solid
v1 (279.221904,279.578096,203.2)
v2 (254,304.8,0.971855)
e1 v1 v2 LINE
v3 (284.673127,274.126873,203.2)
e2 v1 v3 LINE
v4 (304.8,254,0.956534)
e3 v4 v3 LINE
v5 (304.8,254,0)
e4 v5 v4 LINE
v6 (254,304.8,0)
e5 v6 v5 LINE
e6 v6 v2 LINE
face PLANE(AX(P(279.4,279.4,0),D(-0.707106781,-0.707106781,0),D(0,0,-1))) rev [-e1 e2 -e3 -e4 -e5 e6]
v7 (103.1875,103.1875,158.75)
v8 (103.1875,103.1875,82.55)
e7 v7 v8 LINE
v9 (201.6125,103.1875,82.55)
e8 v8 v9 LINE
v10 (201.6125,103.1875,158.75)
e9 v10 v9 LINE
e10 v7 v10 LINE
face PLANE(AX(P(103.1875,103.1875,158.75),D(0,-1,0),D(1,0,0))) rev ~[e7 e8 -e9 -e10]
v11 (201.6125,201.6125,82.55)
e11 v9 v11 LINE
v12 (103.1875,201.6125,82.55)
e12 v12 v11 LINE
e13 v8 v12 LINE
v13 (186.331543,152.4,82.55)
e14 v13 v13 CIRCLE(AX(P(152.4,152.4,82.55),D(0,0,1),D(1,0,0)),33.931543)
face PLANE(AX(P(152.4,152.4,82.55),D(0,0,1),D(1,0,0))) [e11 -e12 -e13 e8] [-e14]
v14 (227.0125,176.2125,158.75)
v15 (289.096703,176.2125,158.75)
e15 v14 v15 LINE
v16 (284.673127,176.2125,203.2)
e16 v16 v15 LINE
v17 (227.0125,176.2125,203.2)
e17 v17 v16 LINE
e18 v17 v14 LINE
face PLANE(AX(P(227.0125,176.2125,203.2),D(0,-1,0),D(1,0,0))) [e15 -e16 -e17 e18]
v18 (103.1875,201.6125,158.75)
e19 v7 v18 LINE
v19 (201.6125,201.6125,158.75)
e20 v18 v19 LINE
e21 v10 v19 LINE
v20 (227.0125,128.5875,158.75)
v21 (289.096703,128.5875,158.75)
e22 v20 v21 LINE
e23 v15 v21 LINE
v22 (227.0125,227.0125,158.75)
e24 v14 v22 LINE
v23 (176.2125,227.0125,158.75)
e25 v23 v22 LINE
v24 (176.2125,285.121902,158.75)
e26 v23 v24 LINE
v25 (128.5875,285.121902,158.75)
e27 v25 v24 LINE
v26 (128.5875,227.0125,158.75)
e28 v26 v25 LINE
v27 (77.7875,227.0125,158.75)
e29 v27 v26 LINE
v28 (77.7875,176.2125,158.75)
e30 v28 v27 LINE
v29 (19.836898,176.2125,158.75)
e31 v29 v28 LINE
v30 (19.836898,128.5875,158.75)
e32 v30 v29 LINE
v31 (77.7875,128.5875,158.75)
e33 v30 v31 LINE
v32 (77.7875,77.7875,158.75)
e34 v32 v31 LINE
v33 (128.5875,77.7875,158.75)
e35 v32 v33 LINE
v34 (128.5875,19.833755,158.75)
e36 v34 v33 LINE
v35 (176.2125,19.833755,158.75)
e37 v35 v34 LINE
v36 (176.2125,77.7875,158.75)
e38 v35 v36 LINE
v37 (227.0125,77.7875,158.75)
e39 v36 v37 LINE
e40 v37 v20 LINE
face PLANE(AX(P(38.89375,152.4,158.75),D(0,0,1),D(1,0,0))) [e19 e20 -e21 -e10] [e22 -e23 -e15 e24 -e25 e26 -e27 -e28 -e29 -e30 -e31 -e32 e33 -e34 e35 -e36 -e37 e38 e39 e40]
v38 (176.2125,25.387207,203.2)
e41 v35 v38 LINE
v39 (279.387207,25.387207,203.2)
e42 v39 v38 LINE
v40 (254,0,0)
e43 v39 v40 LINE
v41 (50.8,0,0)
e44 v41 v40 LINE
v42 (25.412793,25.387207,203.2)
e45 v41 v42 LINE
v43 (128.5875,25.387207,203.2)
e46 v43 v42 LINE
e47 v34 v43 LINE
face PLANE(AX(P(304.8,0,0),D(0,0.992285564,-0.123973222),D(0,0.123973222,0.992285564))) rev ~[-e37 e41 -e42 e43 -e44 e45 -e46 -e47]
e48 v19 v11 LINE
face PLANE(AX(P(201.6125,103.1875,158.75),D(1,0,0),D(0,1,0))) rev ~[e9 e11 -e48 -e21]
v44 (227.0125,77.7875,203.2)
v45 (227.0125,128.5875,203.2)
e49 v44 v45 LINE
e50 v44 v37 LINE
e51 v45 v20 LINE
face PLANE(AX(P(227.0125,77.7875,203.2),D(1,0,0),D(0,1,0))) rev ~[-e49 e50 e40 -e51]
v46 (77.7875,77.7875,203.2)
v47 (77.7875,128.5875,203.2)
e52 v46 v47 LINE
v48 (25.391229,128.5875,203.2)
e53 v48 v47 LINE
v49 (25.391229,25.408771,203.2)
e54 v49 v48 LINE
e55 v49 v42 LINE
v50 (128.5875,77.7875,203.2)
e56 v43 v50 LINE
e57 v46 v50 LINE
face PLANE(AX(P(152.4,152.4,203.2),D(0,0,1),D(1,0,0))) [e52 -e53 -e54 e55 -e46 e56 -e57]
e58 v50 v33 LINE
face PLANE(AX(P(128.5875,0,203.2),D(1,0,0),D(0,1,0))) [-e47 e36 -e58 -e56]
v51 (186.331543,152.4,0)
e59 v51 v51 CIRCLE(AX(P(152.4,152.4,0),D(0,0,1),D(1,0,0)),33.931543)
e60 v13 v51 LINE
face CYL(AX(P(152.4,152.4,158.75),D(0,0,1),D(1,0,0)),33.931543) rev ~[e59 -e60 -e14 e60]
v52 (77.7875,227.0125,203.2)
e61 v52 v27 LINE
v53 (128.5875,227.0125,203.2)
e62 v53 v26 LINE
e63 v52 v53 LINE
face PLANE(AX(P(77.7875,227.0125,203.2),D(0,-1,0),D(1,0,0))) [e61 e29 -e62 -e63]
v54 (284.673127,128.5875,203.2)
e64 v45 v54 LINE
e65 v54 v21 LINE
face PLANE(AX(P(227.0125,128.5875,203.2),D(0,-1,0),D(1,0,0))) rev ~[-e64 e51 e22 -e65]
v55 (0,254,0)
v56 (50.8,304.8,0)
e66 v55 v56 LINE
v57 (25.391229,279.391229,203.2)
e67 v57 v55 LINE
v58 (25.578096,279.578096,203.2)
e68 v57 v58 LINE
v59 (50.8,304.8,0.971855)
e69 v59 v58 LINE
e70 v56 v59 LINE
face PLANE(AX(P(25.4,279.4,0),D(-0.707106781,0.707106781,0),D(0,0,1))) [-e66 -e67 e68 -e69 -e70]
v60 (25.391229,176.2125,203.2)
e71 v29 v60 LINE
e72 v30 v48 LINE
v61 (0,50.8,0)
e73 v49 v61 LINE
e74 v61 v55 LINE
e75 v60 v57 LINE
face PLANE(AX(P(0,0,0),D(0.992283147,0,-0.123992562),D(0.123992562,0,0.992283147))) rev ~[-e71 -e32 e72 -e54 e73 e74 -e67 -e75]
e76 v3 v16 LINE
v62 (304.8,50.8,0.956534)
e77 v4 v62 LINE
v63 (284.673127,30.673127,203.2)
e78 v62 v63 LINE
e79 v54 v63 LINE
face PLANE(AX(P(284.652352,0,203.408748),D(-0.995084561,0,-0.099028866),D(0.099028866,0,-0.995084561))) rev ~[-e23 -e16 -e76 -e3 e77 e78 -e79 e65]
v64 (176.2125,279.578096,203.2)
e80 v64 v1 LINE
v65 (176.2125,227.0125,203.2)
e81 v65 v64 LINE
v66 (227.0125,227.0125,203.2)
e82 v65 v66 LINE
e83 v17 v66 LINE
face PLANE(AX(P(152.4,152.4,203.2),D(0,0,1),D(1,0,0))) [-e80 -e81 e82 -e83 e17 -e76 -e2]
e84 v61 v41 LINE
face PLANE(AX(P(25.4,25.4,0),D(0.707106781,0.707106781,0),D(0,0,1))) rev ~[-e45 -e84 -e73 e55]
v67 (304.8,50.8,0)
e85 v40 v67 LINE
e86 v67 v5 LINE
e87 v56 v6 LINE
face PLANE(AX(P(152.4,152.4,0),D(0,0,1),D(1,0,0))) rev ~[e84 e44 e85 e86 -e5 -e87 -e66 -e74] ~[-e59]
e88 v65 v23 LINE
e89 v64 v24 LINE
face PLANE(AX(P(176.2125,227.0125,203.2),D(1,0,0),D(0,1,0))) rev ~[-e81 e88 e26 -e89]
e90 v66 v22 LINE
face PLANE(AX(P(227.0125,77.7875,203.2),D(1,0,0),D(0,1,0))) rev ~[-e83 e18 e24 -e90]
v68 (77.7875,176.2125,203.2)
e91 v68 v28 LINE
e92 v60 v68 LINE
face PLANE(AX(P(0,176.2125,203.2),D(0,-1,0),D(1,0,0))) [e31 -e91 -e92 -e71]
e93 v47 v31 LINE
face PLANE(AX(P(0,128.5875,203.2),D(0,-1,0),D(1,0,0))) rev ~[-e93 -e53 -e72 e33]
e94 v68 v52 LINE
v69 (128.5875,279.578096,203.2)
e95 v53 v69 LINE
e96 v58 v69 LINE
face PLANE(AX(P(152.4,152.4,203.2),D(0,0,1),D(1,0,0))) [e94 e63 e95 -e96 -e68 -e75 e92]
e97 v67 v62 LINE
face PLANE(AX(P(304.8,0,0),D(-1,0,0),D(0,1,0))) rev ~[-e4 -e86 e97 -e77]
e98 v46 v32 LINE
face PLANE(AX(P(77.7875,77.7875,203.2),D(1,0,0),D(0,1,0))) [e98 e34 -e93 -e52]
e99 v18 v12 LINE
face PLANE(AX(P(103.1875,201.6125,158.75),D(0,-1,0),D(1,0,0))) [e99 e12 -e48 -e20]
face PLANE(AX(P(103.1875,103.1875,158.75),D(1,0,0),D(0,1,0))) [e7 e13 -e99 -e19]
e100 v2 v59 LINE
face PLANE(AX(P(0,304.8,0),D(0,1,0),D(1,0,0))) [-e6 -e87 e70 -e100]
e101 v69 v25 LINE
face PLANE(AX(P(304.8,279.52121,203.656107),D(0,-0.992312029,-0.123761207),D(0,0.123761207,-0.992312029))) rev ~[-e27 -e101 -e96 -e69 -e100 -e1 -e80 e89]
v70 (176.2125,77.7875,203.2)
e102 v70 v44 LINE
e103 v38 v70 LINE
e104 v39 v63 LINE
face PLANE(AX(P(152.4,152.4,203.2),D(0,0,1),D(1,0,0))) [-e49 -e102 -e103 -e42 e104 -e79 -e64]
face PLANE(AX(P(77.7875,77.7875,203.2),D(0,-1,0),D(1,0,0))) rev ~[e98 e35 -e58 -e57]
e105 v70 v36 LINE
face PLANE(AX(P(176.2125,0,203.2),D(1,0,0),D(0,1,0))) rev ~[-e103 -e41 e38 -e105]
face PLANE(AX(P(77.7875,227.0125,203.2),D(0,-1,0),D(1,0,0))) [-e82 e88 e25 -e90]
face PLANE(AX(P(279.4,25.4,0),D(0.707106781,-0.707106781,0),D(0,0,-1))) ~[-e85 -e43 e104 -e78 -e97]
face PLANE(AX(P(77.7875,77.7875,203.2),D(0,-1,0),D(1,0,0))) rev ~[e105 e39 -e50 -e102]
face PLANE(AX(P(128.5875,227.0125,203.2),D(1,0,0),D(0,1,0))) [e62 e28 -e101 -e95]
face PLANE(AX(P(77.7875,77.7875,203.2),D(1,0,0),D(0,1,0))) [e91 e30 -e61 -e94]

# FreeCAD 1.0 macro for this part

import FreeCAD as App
import Part
import Sketcher
Q = App.Units.Quantity


def edges_at(feature, points):
    """Names of the edges that pass closest to the given points."""
    edges = feature.Shape.Edges
    near = lambda p: min(range(len(edges)), key=lambda i: edges[i].distToShape(Part.Vertex(*p))[0])
    return sorted({f"Edge{near(p) + 1}" for p in points})


def add_polygon(sketch, points):
    """Adds a closed chain of lines whose ends are joined by coincident constraints."""
    first, n = sketch.GeometryCount, len(points)
    for a, b in zip(points, points[1:] + points[:1]):
        sketch.addGeometry(Part.LineSegment(App.Vector(*a, 0), App.Vector(*b, 0)), False)
    for i in range(n):
        sketch.addConstraint(Sketcher.Constraint("Coincident", first + i, 2, first + (i + 1) % n, 1))

doc = App.newDocument("Part")
body = doc.addObject("PartDesign::Body", "Body")

sketch1 = body.newObject("Sketcher::SketchObject", "Sketch")
sketch1.AttachmentSupport = (doc.getObject("XY_Plane"), [""])
sketch1.MapMode = "FlatFace"
add_polygon(sketch1, [(0, 305), (0, 0), (305, 0), (305, 305)])
sketch1.addConstraint([
    Sketcher.Constraint("Vertical", 0),
    Sketcher.Constraint("Horizontal", 1),
    Sketcher.Constraint("Vertical", 2),
    Sketcher.Constraint("Horizontal", 3),
    Sketcher.Constraint("Coincident", 0, 2, -1, 1),
    Sketcher.Constraint("Equal", 3, 0),
    Sketcher.Constraint("DistanceX", 1, 1, 1, 2, Q("12 in")),
])
pad1 = body.newObject("PartDesign::Pad", "Pad")
pad1.Profile = sketch1
pad1.Length = Q("8 in")

sketch2 = body.newObject("Sketcher::SketchObject", "Sketch001")
sketch2.AttachmentSupport = (doc.getObject("XY_Plane"), [""])
sketch2.MapMode = "FlatFace"
sketch2.AttachmentOffset = App.Placement(App.Vector(0, 0, 8 * 25.4), App.Rotation())
add_polygon(sketch2, [(78, 227), (78, 78), (227, 78), (227, 227)])
sketch2.addConstraint([
    Sketcher.Constraint("Vertical", 0),
    Sketcher.Constraint("Horizontal", 1),
    Sketcher.Constraint("Vertical", 2),
    Sketcher.Constraint("Horizontal", 3),
    Sketcher.Constraint("Equal", 3, 0),
    Sketcher.Constraint("DistanceX", 1, 1, 1, 2, Q("5.875 in")),
    Sketcher.Constraint("DistanceX", -1, 1, 0, 2, Q("3.0625 in")),
    Sketcher.Constraint("DistanceY", -1, 1, 0, 2, Q("3.0625 in")),
])
pocket1 = body.newObject("PartDesign::Pocket", "Pocket")
pocket1.Profile = sketch2
pocket1.Length = Q("1.75 in")

sketch3 = body.newObject("Sketcher::SketchObject", "Sketch002")
sketch3.AttachmentSupport = (doc.getObject("XY_Plane"), [""])
sketch3.MapMode = "FlatFace"
sketch3.AttachmentOffset = App.Placement(App.Vector(0, 0, 8 * 25.4), App.Rotation())
add_polygon(sketch3, [(129, 305), (129, 227), (176, 227), (176, 305)])
add_polygon(sketch3, [(129, 78), (129, 0), (176, 0), (176, 78)])
add_polygon(sketch3, [(227, 176), (227, 129), (305, 129), (305, 176)])
add_polygon(sketch3, [(0, 176), (0, 129), (78, 129), (78, 176)])
sketch3.addConstraint([
    Sketcher.Constraint("Vertical", 0),
    Sketcher.Constraint("Horizontal", 1),
    Sketcher.Constraint("Vertical", 2),
    Sketcher.Constraint("Horizontal", 3),
    Sketcher.Constraint("Vertical", 4),
    Sketcher.Constraint("Horizontal", 5),
    Sketcher.Constraint("Vertical", 6),
    Sketcher.Constraint("Horizontal", 7),
    Sketcher.Constraint("Vertical", 8),
    Sketcher.Constraint("Horizontal", 9),
    Sketcher.Constraint("Vertical", 10),
    Sketcher.Constraint("Horizontal", 11),
    Sketcher.Constraint("Vertical", 12),
    Sketcher.Constraint("Horizontal", 13),
    Sketcher.Constraint("Vertical", 14),
    Sketcher.Constraint("Horizontal", 15),
    Sketcher.Constraint("PointOnObject", 4, 2, -1),
    Sketcher.Constraint("PointOnObject", 12, 2, -2),
    Sketcher.Constraint("Horizontal", 9, 2, 12, 2),
    Sketcher.Constraint("Horizontal", 11, 2, 14, 2),
    Sketcher.Constraint("Vertical", 3, 2, 4, 2),
    Sketcher.Constraint("Vertical", 2, 2, 5, 2),
    Sketcher.Constraint("Equal", 11, 13),
    Sketcher.Constraint("Equal", 15, 0),
    Sketcher.Constraint("Equal", 2, 4),
    Sketcher.Constraint("Equal", 7, 8),
    Sketcher.Constraint("DistanceY", -1, 1, 2, 2, Q("12 in")),
    Sketcher.Constraint("DistanceX", -1, 1, 9, 2, Q("12 in")),
    Sketcher.Constraint("DistanceX", 6, 2, 8, 2, Q("2 in")),
    Sketcher.Constraint("DistanceY", 6, 2, 8, 2, Q("2 in")),
    Sketcher.Constraint("DistanceY", 10, 2, 1, 2, Q("2 in")),
    Sketcher.Constraint("DistanceX", 1, 1, 1, 2, Q("1.875 in")),
])
pocket2 = body.newObject("PartDesign::Pocket", "Pocket001")
pocket2.Profile = sketch3
pocket2.Length = Q("1.75 in")
doc.recompute()

chamfer = body.newObject("PartDesign::Chamfer", "Chamfer")
chamfer.Base = (pocket2, edges_at(pocket2, [
    (304.8, 0, 101.6),
    (304.8, 304.8, 101.6),
    (0, 0, 101.6),
    (0, 304.8, 101.6),
]))
chamfer.Size = Q("2 in")

sketch4 = body.newObject("Sketcher::SketchObject", "Sketch003")
sketch4.AttachmentSupport = (doc.getObject("XY_Plane"), [""])
sketch4.MapMode = "FlatFace"
sketch4.AttachmentOffset = App.Placement(App.Vector(0, 0, 6.25 * 25.4), App.Rotation())
sketch4.addGeometry(Part.Circle(App.Vector(152, 152, 0), App.Vector(0, 0, 1), 34), False)
sketch4.addConstraint([
    Sketcher.Constraint("DistanceX", -1, 1, 0, 3, Q("6 in")),
    Sketcher.Constraint("DistanceY", -1, 1, 0, 3, Q("6 in")),
    Sketcher.Constraint("Diameter", 0, Q("67.863086 mm")),
])
pocket3 = body.newObject("PartDesign::Pocket", "Pocket002")
pocket3.Profile = sketch4
pocket3.Type = "ThroughAll"

sketch5 = body.newObject("Sketcher::SketchObject", "Sketch004")
sketch5.AttachmentSupport = (doc.getObject("XY_Plane"), [""])
sketch5.MapMode = "FlatFace"
sketch5.AttachmentOffset = App.Placement(App.Vector(0, 0, 6.25 * 25.4), App.Rotation())
add_polygon(sketch5, [(103, 202), (103, 103), (202, 103), (202, 202)])
sketch5.addGeometry(Part.Circle(App.Vector(152, 152, 0), App.Vector(0, 0, 1), 34), False)
sketch5.addConstraint([
    Sketcher.Constraint("Vertical", 0),
    Sketcher.Constraint("Horizontal", 1),
    Sketcher.Constraint("Vertical", 2),
    Sketcher.Constraint("Horizontal", 3),
    Sketcher.Constraint("Equal", 3, 0),
    Sketcher.Constraint("DistanceX", -1, 1, 4, 3, Q("6 in")),
    Sketcher.Constraint("DistanceY", -1, 1, 4, 3, Q("6 in")),
    Sketcher.Constraint("DistanceX", 1, 1, 1, 2, Q("3.875 in")),
    Sketcher.Constraint("DistanceX", -1, 1, 0, 2, Q("4.0625 in")),
    Sketcher.Constraint("DistanceY", -1, 1, 0, 2, Q("4.0625 in")),
    Sketcher.Constraint("Diameter", 4, Q("67.863086 mm")),
])
pocket4 = body.newObject("PartDesign::Pocket", "Pocket003")
pocket4.Profile = sketch5
pocket4.Length = Q("3 in")

sketch6 = body.newObject("Sketcher::SketchObject", "Sketch005")
sketch6.AttachmentSupport = (doc.getObject("XZ_Plane"), [""])
sketch6.MapMode = "FlatFace"
add_polygon(sketch6, [(0, 203), (0, 0), (25, 203)])
add_polygon(sketch6, [(285, 203), (305, 0), (305, 203)])
sketch6.addConstraint([
    Sketcher.Constraint("Vertical", 0),
    Sketcher.Constraint("Horizontal", 2),
    Sketcher.Constraint("Vertical", 4),
    Sketcher.Constraint("Horizontal", 5),
    Sketcher.Constraint("Coincident", 0, 2, -1, 1),
    Sketcher.Constraint("PointOnObject", 3, 2, -1),
    Sketcher.Constraint("DistanceX", 2, 2, 2, 1, Q("1 in")),
    Sketcher.Constraint("Distance", 1, Q("8.0649999 in")),
    Sketcher.Constraint("DistanceX", 5, 2, 5, 1, Q("20.24284 mm")),
    Sketcher.Constraint("Distance", 3, Q("204.41353 mm")),
    Sketcher.Constraint("DistanceX", -1, 1, 3, 2, Q("304.895192 mm")),
])
pocket5 = body.newObject("PartDesign::Pocket", "Pocket004")
pocket5.Profile = sketch6
pocket5.Type = "ThroughAll"

sketch7 = body.newObject("Sketcher::SketchObject", "Sketch006")
sketch7.AttachmentSupport = (doc.getObject("YZ_Plane"), [""])
sketch7.MapMode = "FlatFace"
sketch7.AttachmentOffset = App.Placement(App.Vector(0, 0, 12 * 25.4), App.Rotation())
add_polygon(sketch7, [(0, 203), (0, 0), (25, 203)])
add_polygon(sketch7, [(280, 204), (305, 0), (305, 204)])
sketch7.addConstraint([
    Sketcher.Constraint("Vertical", 0),
    Sketcher.Constraint("Horizontal", 2),
    Sketcher.Constraint("Vertical", 4),
    Sketcher.Constraint("Horizontal", 5),
    Sketcher.Constraint("Coincident", 0, 2, -1, 1),
    Sketcher.Constraint("PointOnObject", 3, 2, -1),
    Sketcher.Constraint("Equal", 2, 5),
    Sketcher.Constraint("DistanceX", 2, 2, 2, 1, Q("1 in")),
    Sketcher.Constraint("DistanceY", 0, 2, 0, 1, Q("203.302398 mm")),
    Sketcher.Constraint("Distance", 3, Q("205.23394 mm")),
    Sketcher.Constraint("DistanceX", -1, 1, 3, 2, Q("304.92121 mm")),
])
pocket6 = body.newObject("PartDesign::Pocket", "Pocket005")
pocket6.Profile = sketch7
pocket6.Type = "ThroughAll"

doc.recompute()
